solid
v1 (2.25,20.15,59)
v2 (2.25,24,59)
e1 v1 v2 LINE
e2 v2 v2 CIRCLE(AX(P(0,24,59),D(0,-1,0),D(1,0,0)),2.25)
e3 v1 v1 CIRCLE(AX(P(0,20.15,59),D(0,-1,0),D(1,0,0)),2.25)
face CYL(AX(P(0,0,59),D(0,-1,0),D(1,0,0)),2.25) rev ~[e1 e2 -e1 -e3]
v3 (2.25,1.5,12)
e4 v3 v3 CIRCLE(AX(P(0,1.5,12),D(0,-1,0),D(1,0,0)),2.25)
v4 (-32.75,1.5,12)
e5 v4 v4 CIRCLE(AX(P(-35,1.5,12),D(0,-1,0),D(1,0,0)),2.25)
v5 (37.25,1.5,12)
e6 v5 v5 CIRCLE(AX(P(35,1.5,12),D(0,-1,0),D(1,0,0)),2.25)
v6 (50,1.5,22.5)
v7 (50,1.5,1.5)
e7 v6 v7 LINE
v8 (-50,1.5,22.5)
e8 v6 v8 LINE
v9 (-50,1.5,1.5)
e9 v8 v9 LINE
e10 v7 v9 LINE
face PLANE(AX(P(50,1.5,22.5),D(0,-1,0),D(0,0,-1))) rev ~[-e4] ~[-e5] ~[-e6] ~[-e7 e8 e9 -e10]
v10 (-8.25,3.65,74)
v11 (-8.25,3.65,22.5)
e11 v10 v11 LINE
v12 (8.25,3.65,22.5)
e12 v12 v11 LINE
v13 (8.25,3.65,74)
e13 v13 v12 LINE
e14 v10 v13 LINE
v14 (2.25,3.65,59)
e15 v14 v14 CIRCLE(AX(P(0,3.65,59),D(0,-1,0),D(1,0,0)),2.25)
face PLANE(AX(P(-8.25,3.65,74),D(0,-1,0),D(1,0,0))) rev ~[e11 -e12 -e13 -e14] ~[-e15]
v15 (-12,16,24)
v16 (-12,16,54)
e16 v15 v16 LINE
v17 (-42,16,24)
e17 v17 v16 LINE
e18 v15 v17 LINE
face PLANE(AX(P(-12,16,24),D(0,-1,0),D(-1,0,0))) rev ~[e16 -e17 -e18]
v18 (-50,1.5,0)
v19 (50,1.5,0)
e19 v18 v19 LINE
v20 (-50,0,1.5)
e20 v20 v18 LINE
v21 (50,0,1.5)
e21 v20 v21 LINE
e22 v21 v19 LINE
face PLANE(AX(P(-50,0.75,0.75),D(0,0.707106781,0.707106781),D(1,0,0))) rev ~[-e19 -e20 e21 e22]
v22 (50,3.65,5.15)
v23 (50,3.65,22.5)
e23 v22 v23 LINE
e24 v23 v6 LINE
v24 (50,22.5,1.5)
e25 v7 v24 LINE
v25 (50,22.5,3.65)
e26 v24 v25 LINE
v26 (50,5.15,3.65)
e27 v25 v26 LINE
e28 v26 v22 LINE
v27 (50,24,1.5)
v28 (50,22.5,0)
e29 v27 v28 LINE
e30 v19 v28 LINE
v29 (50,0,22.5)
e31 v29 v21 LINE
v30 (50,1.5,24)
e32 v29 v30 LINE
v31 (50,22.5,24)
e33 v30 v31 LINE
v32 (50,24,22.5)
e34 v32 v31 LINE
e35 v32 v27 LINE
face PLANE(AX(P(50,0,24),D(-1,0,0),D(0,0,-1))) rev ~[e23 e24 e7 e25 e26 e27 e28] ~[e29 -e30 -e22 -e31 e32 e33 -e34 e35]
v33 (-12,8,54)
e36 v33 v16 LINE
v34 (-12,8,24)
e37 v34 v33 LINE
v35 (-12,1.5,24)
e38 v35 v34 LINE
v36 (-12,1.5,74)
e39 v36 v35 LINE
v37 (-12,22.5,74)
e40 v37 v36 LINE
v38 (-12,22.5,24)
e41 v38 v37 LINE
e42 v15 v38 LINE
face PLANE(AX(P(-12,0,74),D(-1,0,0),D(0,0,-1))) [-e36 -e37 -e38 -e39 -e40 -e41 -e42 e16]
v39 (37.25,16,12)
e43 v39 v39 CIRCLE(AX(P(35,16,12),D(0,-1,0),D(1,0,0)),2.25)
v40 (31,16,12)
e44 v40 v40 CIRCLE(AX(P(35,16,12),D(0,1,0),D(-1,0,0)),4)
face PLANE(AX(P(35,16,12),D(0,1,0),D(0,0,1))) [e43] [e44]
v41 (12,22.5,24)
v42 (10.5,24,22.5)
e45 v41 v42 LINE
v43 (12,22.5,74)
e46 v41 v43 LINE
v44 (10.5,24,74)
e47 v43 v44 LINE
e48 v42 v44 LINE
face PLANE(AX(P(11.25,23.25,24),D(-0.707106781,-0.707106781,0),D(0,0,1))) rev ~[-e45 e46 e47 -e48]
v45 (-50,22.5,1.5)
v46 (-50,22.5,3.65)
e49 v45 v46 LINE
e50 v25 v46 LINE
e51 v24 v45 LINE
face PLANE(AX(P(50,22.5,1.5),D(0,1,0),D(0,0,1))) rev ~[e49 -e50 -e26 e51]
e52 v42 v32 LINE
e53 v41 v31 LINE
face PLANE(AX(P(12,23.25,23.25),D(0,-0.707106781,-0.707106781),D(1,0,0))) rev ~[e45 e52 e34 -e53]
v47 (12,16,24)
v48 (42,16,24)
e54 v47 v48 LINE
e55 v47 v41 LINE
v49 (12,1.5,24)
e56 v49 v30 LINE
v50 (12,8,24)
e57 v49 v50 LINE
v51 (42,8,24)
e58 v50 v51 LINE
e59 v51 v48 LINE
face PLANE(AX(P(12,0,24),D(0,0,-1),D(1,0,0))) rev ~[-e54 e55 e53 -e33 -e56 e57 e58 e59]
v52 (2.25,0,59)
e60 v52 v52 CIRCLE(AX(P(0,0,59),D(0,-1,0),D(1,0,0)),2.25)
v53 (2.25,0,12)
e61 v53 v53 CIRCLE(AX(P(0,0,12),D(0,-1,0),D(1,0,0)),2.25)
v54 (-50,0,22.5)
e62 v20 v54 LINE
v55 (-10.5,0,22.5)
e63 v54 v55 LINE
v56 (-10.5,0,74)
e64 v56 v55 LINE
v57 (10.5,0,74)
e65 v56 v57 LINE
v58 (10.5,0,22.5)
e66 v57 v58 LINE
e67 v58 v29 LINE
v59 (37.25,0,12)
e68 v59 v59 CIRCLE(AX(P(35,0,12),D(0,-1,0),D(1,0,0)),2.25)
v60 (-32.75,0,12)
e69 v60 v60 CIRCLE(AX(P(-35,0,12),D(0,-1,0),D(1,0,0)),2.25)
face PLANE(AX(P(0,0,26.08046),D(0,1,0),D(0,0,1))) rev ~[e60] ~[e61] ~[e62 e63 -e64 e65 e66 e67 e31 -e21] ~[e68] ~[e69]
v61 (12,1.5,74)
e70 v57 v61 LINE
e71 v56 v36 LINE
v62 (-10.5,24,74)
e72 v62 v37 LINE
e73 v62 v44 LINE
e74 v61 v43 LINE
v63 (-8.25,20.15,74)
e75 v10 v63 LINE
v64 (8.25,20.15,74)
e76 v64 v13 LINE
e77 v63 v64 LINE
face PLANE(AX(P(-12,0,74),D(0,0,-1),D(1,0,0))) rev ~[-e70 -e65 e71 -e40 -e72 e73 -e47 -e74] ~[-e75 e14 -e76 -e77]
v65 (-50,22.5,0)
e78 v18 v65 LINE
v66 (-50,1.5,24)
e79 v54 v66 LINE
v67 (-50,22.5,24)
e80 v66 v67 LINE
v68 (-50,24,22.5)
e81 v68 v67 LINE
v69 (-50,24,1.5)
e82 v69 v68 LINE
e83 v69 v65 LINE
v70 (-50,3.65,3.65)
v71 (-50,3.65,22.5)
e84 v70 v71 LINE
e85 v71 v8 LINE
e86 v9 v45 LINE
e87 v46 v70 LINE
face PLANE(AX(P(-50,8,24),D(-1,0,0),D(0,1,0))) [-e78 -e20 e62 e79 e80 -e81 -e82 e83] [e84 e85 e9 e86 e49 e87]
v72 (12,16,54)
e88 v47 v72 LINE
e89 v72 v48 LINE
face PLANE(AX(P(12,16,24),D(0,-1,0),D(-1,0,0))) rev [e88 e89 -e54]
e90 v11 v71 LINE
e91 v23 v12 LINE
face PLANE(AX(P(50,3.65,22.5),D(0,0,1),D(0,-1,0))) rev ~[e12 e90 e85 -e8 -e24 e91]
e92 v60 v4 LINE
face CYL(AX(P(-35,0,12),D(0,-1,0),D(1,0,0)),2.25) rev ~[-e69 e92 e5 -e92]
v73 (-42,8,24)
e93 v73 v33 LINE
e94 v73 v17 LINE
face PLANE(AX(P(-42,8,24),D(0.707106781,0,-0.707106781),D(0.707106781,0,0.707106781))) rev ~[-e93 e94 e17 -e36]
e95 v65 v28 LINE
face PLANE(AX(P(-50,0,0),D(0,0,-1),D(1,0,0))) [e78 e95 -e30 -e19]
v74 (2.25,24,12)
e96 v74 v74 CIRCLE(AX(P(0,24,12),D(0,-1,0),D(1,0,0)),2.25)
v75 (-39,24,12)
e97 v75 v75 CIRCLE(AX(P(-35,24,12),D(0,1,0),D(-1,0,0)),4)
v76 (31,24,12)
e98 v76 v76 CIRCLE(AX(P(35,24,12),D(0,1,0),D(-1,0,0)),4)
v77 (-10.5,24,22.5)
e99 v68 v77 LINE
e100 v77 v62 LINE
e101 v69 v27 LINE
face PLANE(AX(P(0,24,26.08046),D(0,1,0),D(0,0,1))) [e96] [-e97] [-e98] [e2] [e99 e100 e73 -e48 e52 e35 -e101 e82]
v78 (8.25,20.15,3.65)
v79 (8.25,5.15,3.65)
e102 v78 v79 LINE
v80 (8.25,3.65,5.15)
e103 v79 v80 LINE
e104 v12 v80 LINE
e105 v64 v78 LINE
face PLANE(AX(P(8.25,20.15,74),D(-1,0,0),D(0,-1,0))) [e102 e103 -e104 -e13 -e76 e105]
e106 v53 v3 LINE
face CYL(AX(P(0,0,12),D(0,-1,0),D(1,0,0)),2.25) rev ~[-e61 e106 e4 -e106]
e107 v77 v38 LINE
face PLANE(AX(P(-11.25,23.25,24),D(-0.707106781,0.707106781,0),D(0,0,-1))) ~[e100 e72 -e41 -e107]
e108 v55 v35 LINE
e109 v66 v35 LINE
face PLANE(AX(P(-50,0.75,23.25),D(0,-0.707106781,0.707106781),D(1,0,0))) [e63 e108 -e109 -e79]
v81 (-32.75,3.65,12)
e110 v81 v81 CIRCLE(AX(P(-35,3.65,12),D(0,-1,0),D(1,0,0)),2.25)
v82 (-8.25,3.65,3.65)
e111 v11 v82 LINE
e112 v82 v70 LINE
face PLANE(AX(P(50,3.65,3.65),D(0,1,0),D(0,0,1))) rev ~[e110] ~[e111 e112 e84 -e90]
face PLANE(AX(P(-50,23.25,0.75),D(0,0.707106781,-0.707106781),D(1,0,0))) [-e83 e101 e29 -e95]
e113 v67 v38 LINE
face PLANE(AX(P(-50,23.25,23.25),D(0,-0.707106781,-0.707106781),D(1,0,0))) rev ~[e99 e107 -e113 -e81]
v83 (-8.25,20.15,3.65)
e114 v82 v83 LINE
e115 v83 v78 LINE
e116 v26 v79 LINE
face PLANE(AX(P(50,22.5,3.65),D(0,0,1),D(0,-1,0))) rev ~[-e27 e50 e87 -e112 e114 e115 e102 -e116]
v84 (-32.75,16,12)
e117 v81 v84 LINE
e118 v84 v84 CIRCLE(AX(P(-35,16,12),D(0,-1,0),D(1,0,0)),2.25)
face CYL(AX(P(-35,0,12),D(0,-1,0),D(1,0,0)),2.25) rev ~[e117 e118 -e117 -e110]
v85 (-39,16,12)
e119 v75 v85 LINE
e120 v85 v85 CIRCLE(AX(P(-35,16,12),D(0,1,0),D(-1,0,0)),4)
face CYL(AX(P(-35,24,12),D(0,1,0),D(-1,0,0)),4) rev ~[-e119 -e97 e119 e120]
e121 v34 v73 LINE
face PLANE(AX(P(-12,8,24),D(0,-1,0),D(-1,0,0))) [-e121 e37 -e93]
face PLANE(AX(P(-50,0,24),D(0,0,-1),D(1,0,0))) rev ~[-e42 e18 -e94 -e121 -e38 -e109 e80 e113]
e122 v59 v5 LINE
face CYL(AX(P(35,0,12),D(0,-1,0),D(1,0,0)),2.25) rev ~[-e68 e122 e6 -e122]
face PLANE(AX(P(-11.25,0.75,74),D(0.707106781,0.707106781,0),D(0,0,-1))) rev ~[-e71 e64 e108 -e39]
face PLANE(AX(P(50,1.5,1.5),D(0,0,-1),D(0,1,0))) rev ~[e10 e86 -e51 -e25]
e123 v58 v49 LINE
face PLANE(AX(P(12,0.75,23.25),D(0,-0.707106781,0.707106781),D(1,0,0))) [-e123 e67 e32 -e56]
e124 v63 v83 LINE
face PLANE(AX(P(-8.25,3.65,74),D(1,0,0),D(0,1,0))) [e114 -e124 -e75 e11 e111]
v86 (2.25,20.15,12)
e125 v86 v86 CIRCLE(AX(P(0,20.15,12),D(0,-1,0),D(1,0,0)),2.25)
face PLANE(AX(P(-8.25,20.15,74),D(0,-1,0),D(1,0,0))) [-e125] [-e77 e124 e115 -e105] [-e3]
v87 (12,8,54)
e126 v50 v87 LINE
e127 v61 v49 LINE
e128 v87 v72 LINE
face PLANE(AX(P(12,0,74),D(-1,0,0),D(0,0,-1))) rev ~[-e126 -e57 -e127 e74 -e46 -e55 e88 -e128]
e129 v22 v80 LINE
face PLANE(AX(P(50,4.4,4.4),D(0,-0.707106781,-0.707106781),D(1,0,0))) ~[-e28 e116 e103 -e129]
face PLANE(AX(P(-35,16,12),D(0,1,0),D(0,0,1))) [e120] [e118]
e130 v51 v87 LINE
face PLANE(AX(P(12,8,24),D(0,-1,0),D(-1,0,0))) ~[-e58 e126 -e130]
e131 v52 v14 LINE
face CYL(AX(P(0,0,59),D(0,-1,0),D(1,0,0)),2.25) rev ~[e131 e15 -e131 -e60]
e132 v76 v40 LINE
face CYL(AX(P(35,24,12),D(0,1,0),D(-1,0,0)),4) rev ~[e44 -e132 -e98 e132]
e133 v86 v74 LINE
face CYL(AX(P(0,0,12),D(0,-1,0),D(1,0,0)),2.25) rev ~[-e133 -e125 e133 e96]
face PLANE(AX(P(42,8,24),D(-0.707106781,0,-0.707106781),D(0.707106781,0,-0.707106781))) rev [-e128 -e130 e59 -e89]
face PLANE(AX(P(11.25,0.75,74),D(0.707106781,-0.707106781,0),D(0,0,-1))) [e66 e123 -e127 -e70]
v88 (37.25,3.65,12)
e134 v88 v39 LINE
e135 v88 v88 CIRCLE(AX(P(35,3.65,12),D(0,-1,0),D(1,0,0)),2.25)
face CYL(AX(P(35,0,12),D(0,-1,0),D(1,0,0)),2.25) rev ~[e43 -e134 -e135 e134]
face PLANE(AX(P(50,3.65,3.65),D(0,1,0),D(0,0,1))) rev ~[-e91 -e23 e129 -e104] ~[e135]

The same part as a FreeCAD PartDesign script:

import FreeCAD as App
import Part
import Sketcher
from FreeCAD import Vector


def edges_at(feature, points):
    """Names of the edges that pass closest to the given points."""
    edges = feature.Shape.Edges
    near = lambda p: min(range(len(edges)), key=lambda i: edges[i].distToShape(Part.Vertex(*p))[0])
    return sorted({f"Edge{near(p) + 1}" for p in points})


def add_polygon(sketch, points):
    """Adds a closed chain of lines whose ends are joined by coincident constraints."""
    first, n = sketch.GeometryCount, len(points)
    for a, b in zip(points, points[1:] + points[:1]):
        sketch.addGeometry(Part.LineSegment(App.Vector(*a, 0), App.Vector(*b, 0)), False)
    for i in range(n):
        sketch.addConstraint(Sketcher.Constraint("Coincident", first + i, 2, first + (i + 1) % n, 1))

doc = App.newDocument("Part")
body = doc.addObject("PartDesign::Body", "Body")

# Sketch on XZ plane
sketch1 = doc.addObject("Sketcher::SketchObject", "Sketch")
body.addObject(sketch1)
sketch1.AttachmentSupport = (doc.XZ_Plane, [""])
sketch1.MapMode = "FlatFace"
add_polygon(sketch1, [(12, 74), (-12, 74), (-12, 24), (-50, 24), (-50, 0), (50, 0), (50, 24), (12, 24)])  # lines 0-7
sketch1.addConstraint([
    Sketcher.Constraint("Horizontal", 0),
    Sketcher.Constraint("Vertical", 1),
    Sketcher.Constraint("Horizontal", 2),
    Sketcher.Constraint("Vertical", 3),
    Sketcher.Constraint("Horizontal", 4),
    Sketcher.Constraint("Vertical", 5),
    Sketcher.Constraint("Horizontal", 6),
    Sketcher.Constraint("Vertical", 7),
    Sketcher.Constraint("Symmetric", 3, 2, 4, 2, -1, 1),
    Sketcher.Constraint("Symmetric", 1, 2, 6, 2, -2),
    Sketcher.Constraint("Equal", 0, 3),
    Sketcher.Constraint("DistanceX", 0, 2, 0, 1, 24.0),
    Sketcher.Constraint("DistanceX", 2, 2, 2, 1, 38.0),
    Sketcher.Constraint("DistanceY", 1, 2, 1, 1, 50.0),
])
pad1 = doc.addObject("PartDesign::Pad", "Pad")
body.addObject(pad1)
pad1.Profile = sketch1
pad1.Length = 24
pad1.Reversed = True

# Sketch on YZ plane
sketch2 = doc.addObject("Sketcher::SketchObject", "Sketch001")
body.addObject(sketch2)
sketch2.AttachmentSupport = (doc.YZ_Plane, [""])
sketch2.MapMode = "FlatFace"
sketch2.AttachmentOffset = App.Placement(Vector(0, 0, 50), App.Rotation())
add_polygon(sketch2, [(22.5, 3.6), (3.6, 3.6), (3.6, 22.5), (1.5, 22.5), (1.5, 1.5), (22.5, 1.5)])  # lines 0-5
sketch2.addConstraint([
    Sketcher.Constraint("Horizontal", 0),
    Sketcher.Constraint("Vertical", 1),
    Sketcher.Constraint("Horizontal", 2),
    Sketcher.Constraint("Vertical", 3),
    Sketcher.Constraint("Horizontal", 4),
    Sketcher.Constraint("Vertical", 5),
    Sketcher.Constraint("Equal", 0, 1),
    Sketcher.Constraint("Equal", 4, 3),
    Sketcher.Constraint("DistanceX", 4, 1, 4, 2, 21.0),
    Sketcher.Constraint("DistanceX", 0, 2, 0, 1, 18.85),
    Sketcher.Constraint("DistanceY", -1, 1, 1, 2, 22.5),
    Sketcher.Constraint("DistanceX", -1, 1, 2, 2, 1.5),
])
pocket1 = doc.addObject("PartDesign::Pocket", "Pocket")
body.addObject(pocket1)
pocket1.Profile = sketch2
pocket1.Type = "ThroughAll"

# Sketch on XY plane
sketch3 = doc.addObject("Sketcher::SketchObject", "Sketch002")
body.addObject(sketch3)
sketch3.AttachmentSupport = (doc.XY_Plane, [""])
sketch3.MapMode = "FlatFace"
sketch3.AttachmentOffset = App.Placement(Vector(0, 0, 74), App.Rotation())
add_polygon(sketch3, [(-8, 20), (-8, 4), (8, 4), (8, 20)])  # lines 0-3
sketch3.addConstraint([
    Sketcher.Constraint("Vertical", 0),
    Sketcher.Constraint("Horizontal", 1),
    Sketcher.Constraint("Vertical", 2),
    Sketcher.Constraint("Horizontal", 3),
    Sketcher.Constraint("Equal", 3, 0),
    Sketcher.Constraint("DistanceX", 1, 1, 1, 2, 16.5),
    Sketcher.Constraint("DistanceX", 0, 2, -1, 1, 8.25),
    Sketcher.Constraint("DistanceY", -1, 1, 0, 2, 3.65),
])
pocket2 = doc.addObject("PartDesign::Pocket", "Pocket001")
body.addObject(pocket2)
pocket2.Profile = sketch3
pocket2.Length = 72.5

# Sketch on XY plane
sketch4 = doc.addObject("Sketcher::SketchObject", "Sketch003")
body.addObject(sketch4)
sketch4.AttachmentSupport = (doc.XY_Plane, [""])
sketch4.MapMode = "FlatFace"
sketch4.AttachmentOffset = App.Placement(Vector(0, 0, 24), App.Rotation())
add_polygon(sketch4, [(-50, 8), (-12, 8), (-12, 16), (-50, 16)])  # lines 0-3
sketch4.addConstraint([
    Sketcher.Constraint("Horizontal", 0),
    Sketcher.Constraint("Vertical", 1),
    Sketcher.Constraint("Horizontal", 2),
    Sketcher.Constraint("Vertical", 3),
    Sketcher.Constraint("DistanceX", 0, 1, 0, 2, 38.0),
    Sketcher.Constraint("DistanceY", 1, 1, 1, 2, 8.0),
    Sketcher.Constraint("DistanceX", 0, 2, -1, 1, 12.0),
    Sketcher.Constraint("DistanceY", -1, 1, 0, 2, 8.0),
])
pad2 = doc.addObject("PartDesign::Pad", "Pad001")
body.addObject(pad2)
pad2.Profile = sketch4
pad2.Length = 50

# Sketch on XZ plane
sketch5 = doc.addObject("Sketcher::SketchObject", "Sketch004")
body.addObject(sketch5)
sketch5.AttachmentSupport = (doc.XZ_Plane, [""])
sketch5.MapMode = "FlatFace"
sketch5.AttachmentOffset = App.Placement(Vector(0, 0, -8), App.Rotation())
add_polygon(sketch5, [(-50, 24), (-42, 24), (-12, 54), (-12, 74), (-50, 74)])  # lines 0-4
sketch5.addConstraint([
    Sketcher.Constraint("Horizontal", 0),
    Sketcher.Constraint("Vertical", 2),
    Sketcher.Constraint("Horizontal", 3),
    Sketcher.Constraint("Vertical", 4),
    Sketcher.Constraint("DistanceX", 0, 1, 0, 2, 8.0),
    Sketcher.Constraint("DistanceX", 3, 2, 3, 1, 38.0),
    Sketcher.Constraint("DistanceY", 2, 1, 2, 2, 20.0),
    Sketcher.Constraint("DistanceY", 4, 2, 4, 1, 50.0),
    Sketcher.Constraint("DistanceX", 0, 2, -1, 1, 42.0),
    Sketcher.Constraint("DistanceY", -1, 1, 0, 2, 24.0),
])
pocket3 = doc.addObject("PartDesign::Pocket", "Pocket002")
body.addObject(pocket3)
pocket3.Profile = sketch5
pocket3.Type = "ThroughAll"
doc.recompute()

mirrored = doc.addObject("PartDesign::Mirrored", "Mirrored")
body.addObject(mirrored)
mirrored.Originals = [pad2, pocket3]
mirrored.MirrorPlane = (doc.YZ_Plane, [""])
body.Tip = mirrored
doc.recompute()

chamfer = doc.addObject("PartDesign::Chamfer", "Chamfer")
body.addObject(chamfer)
chamfer.Base = (mirrored, edges_at(mirrored, [
    (12, 24, 49),
    (12, 0, 49),
    (-12, 0, 49),
    (-12, 24, 49),
    (-31, 0, 24),
    (31, 0, 24),
    (0, 0, 0),
    (-31, 24, 24),
    (31, 24, 24),
    (0, 24, 0),
    (29.125, 3.65, 3.65),
]))
chamfer.Size = 1.5

# Sketch on XZ plane
sketch6 = doc.addObject("Sketcher::SketchObject", "Sketch005")
body.addObject(sketch6)
sketch6.AttachmentSupport = (doc.XZ_Plane, [""])
sketch6.MapMode = "FlatFace"
sketch6.addGeometry([
    Part.Circle(Vector(0, 59, 0), Vector(0, 0, 1), 2.2),
    Part.Circle(Vector(0, 12, 0), Vector(0, 0, 1), 2.2),
    Part.Circle(Vector(35, 12, 0), Vector(0, 0, 1), 2.2),
    Part.Circle(Vector(-35, 12, 0), Vector(0, 0, 1), 2.2),
], False)
sketch6.addConstraint([
    Sketcher.Constraint("Equal", 0, 1),
    Sketcher.Constraint("Equal", 1, 2),
    Sketcher.Constraint("Equal", 2, 3),
    Sketcher.Constraint("Symmetric", 2, 3, 3, 3, -2),
    Sketcher.Constraint("PointOnObject", 0, 3, -2),
    Sketcher.Constraint("PointOnObject", 1, 3, -2),
    Sketcher.Constraint("Horizontal", 1, 3, 2, 3),
    Sketcher.Constraint("Diameter", 0, 4.5),
    Sketcher.Constraint("DistanceY", -1, 1, 0, 3, 59.0),
    Sketcher.Constraint("DistanceY", -1, 1, 1, 3, 12.0),
    Sketcher.Constraint("DistanceX", -1, 1, 2, 3, 35.0),
])
pocket4 = doc.addObject("PartDesign::Pocket", "Pocket003")
body.addObject(pocket4)
pocket4.Profile = sketch6
pocket4.Type = "ThroughAll"

# Sketch on XZ plane
sketch7 = doc.addObject("Sketcher::SketchObject", "Sketch006")
body.addObject(sketch7)
sketch7.AttachmentSupport = (doc.XZ_Plane, [""])
sketch7.MapMode = "FlatFace"
sketch7.AttachmentOffset = App.Placement(Vector(0, 0, -24), App.Rotation())
sketch7.addGeometry([
    Part.Circle(Vector(-35, 12, 0), Vector(0, 0, 1), 4),
    Part.Circle(Vector(35, 12, 0), Vector(0, 0, 1), 4),
], False)
sketch7.addConstraint([
    Sketcher.Constraint("Equal", 0, 1),
    Sketcher.Constraint("Symmetric", 0, 3, 1, 3, -2),
    Sketcher.Constraint("Diameter", 0, 8.0),
    Sketcher.Constraint("DistanceX", 0, 3, -1, 1, 35.0),
    Sketcher.Constraint("DistanceY", -1, 1, 0, 3, 12.0),
])
pocket5 = doc.addObject("PartDesign::Pocket", "Pocket004")
body.addObject(pocket5)
pocket5.Profile = sketch7
pocket5.Length = 8
pocket5.Reversed = True

doc.recompute()
